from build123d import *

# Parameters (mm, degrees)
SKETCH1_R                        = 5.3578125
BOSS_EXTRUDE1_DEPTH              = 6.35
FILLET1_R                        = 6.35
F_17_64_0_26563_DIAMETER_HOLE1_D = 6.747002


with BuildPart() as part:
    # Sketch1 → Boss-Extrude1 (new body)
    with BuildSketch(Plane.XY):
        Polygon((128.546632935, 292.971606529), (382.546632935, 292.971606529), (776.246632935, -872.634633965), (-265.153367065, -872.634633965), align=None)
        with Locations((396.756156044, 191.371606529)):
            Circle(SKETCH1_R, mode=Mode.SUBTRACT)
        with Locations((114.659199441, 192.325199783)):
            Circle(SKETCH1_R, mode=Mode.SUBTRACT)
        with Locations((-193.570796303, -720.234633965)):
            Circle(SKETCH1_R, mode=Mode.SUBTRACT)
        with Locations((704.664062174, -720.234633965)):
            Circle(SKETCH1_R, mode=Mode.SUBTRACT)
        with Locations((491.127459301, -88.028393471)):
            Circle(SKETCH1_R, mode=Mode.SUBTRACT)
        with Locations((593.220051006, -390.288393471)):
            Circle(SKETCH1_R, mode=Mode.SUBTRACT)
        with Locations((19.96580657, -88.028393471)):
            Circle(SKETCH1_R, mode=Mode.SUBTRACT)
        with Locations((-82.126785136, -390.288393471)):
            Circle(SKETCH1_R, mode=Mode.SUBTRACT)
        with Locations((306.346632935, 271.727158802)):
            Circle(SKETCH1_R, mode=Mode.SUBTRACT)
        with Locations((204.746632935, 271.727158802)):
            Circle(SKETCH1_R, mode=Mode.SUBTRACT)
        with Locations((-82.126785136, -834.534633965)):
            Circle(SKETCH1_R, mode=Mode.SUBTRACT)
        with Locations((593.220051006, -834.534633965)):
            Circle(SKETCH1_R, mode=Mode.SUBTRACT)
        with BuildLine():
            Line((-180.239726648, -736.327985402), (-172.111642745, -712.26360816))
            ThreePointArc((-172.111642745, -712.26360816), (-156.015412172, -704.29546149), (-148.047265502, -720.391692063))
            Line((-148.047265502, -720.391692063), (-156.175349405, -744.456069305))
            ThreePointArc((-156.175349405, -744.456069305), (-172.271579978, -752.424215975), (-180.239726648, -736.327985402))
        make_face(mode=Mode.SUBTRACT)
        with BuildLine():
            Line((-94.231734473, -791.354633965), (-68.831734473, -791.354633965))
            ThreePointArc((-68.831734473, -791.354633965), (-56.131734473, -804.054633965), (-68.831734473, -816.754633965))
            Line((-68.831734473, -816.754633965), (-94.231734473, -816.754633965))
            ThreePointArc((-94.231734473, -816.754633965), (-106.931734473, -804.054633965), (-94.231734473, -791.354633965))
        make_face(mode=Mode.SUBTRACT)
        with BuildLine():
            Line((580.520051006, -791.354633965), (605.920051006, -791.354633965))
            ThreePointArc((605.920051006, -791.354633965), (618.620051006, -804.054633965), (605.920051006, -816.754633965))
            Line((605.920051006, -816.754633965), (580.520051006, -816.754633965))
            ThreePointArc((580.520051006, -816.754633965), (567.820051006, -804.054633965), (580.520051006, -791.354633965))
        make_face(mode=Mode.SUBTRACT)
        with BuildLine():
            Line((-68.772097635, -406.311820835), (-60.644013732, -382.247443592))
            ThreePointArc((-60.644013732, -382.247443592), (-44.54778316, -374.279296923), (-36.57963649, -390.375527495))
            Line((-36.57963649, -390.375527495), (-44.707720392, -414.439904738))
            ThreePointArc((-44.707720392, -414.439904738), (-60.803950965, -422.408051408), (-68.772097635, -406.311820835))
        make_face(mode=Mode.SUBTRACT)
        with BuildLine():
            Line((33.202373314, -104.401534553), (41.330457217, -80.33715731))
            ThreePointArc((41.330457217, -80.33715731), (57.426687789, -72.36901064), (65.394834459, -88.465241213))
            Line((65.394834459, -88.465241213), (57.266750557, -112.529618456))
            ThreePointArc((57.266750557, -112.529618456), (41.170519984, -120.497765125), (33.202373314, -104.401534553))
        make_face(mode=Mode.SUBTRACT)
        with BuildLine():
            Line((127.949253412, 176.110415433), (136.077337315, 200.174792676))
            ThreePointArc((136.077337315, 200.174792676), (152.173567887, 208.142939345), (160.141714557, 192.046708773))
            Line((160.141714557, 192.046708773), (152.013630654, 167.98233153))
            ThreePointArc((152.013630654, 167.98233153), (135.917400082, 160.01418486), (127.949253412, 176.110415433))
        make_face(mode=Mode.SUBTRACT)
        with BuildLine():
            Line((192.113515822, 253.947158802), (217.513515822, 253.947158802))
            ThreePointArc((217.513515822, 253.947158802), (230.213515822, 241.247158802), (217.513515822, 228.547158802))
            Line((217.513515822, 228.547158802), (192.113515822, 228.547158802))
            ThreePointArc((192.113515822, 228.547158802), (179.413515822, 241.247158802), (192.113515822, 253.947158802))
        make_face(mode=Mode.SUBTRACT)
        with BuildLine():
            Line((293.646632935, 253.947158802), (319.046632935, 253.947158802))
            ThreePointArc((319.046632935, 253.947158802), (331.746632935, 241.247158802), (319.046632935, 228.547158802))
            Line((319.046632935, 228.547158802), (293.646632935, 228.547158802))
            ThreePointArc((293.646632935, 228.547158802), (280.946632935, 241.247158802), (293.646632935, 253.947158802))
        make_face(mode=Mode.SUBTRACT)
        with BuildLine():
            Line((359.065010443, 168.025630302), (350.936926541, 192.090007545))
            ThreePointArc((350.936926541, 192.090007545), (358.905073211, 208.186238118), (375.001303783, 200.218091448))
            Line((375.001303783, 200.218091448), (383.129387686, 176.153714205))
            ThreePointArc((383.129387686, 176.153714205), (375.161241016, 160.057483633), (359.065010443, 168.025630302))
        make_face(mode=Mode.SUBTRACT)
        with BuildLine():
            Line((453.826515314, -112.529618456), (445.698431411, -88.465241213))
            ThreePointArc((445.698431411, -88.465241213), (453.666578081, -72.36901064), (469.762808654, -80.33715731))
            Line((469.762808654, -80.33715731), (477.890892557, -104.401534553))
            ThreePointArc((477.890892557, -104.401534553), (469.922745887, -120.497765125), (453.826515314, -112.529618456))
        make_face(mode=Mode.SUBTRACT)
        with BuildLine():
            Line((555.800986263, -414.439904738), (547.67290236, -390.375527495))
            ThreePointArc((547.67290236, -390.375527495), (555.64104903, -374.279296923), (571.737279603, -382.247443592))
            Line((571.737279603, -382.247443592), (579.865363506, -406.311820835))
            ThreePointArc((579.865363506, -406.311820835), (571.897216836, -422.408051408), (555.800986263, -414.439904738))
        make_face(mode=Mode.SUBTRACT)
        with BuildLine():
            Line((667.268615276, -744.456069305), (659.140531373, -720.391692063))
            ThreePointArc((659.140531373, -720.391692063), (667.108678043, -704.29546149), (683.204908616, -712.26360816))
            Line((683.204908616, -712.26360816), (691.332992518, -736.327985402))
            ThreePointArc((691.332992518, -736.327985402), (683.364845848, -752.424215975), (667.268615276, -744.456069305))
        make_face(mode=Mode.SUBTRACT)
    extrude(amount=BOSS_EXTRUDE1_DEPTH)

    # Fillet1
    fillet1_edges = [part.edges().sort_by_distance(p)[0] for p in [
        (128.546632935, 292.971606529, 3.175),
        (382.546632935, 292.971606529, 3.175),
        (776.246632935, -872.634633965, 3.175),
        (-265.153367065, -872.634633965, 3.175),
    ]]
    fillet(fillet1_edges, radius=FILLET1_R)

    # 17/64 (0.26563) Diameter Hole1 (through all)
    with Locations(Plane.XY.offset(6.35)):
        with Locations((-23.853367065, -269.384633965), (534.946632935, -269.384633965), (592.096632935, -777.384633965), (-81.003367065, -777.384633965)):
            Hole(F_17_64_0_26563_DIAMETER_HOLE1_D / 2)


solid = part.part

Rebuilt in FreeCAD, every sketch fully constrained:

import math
import FreeCAD as App
import Part
import Sketcher
Q = App.Units.Quantity


def edges_at(feature, points):
    """Names of the edges that pass closest to the given points."""
    edges = feature.Shape.Edges
    near = lambda p: min(range(len(edges)), key=lambda i: edges[i].distToShape(Part.Vertex(*p))[0])
    return sorted({f"Edge{near(p) + 1}" for p in points})

doc = App.newDocument("Part")
body = doc.addObject("PartDesign::Body", "Body")

sketch1 = doc.addObject("Sketcher::SketchObject", "Sketch")
body.addObject(sketch1)
sketch1.AttachmentSupport = (doc.XY_Plane, [""])
sketch1.MapMode = "FlatFace"
sketch1.addGeometry([
    Part.LineSegment(App.Vector(383, 293, 0), App.Vector(129, 293, 0)),
    Part.LineSegment(App.Vector(129, 293, 0), App.Vector(-265, -873, 0)),
    Part.LineSegment(App.Vector(-265, -873, 0), App.Vector(776, -873, 0)),
    Part.LineSegment(App.Vector(776, -873, 0), App.Vector(383, 293, 0)),
    Part.Circle(App.Vector(705, -720, 0), App.Vector(0, 0, 1), 5),
    Part.LineSegment(App.Vector(667, -744, 0), App.Vector(659, -720, 0)),
    Part.ArcOfCircle(Part.Circle(App.Vector(671, -716, 0), App.Vector(0, 0, 1), 13), math.radians(19), math.radians(199)),
    Part.LineSegment(App.Vector(683, -712, 0), App.Vector(691, -736, 0)),
    Part.ArcOfCircle(Part.Circle(App.Vector(679, -740, 0), App.Vector(0, 0, 1), 13), math.radians(-161), math.radians(19)),
    Part.Circle(App.Vector(593, -835, 0), App.Vector(0, 0, 1), 5),
    Part.LineSegment(App.Vector(581, -791, 0), App.Vector(606, -791, 0)),
    Part.ArcOfCircle(Part.Circle(App.Vector(606, -804, 0), App.Vector(0, 0, 1), 13), math.radians(-90), math.radians(90)),
    Part.LineSegment(App.Vector(606, -817, 0), App.Vector(581, -817, 0)),
    Part.ArcOfCircle(Part.Circle(App.Vector(581, -804, 0), App.Vector(0, 0, 1), 13), math.radians(90), math.radians(270)),
    Part.Circle(App.Vector(593, -390, 0), App.Vector(0, 0, 1), 5),
    Part.LineSegment(App.Vector(556, -414, 0), App.Vector(548, -390, 0)),
    Part.ArcOfCircle(Part.Circle(App.Vector(560, -386, 0), App.Vector(0, 0, 1), 13), math.radians(19), math.radians(199)),
    Part.LineSegment(App.Vector(572, -382, 0), App.Vector(580, -406, 0)),
    Part.ArcOfCircle(Part.Circle(App.Vector(568, -410, 0), App.Vector(0, 0, 1), 13), math.radians(-161), math.radians(19)),
    Part.Circle(App.Vector(-82, -835, 0), App.Vector(0, 0, 1), 5),
    Part.LineSegment(App.Vector(-94, -791, 0), App.Vector(-69, -791, 0)),
    Part.ArcOfCircle(Part.Circle(App.Vector(-69, -804, 0), App.Vector(0, 0, 1), 13), math.radians(-90), math.radians(90)),
    Part.LineSegment(App.Vector(-69, -817, 0), App.Vector(-94, -817, 0)),
    Part.ArcOfCircle(Part.Circle(App.Vector(-94, -804, 0), App.Vector(0, 0, 1), 13), math.radians(90), math.radians(270)),
    Part.LineSegment(App.Vector(-180, -736, 0), App.Vector(-172, -712, 0)),
    Part.ArcOfCircle(Part.Circle(App.Vector(-160, -716, 0), App.Vector(0, 0, 1), 13), math.radians(-19), math.radians(161)),
    Part.LineSegment(App.Vector(-148, -720, 0), App.Vector(-156, -744, 0)),
    Part.ArcOfCircle(Part.Circle(App.Vector(-168, -740, 0), App.Vector(0, 0, 1), 13), math.radians(161), math.radians(341)),
    Part.Circle(App.Vector(-194, -720, 0), App.Vector(0, 0, 1), 5),
    Part.LineSegment(App.Vector(-69, -406, 0), App.Vector(-61, -382, 0)),
    Part.ArcOfCircle(Part.Circle(App.Vector(-49, -386, 0), App.Vector(0, 0, 1), 13), math.radians(-19), math.radians(161)),
    Part.LineSegment(App.Vector(-37, -390, 0), App.Vector(-45, -414, 0)),
    Part.ArcOfCircle(Part.Circle(App.Vector(-57, -410, 0), App.Vector(0, 0, 1), 13), math.radians(161), math.radians(341)),
    Part.Circle(App.Vector(-82, -390, 0), App.Vector(0, 0, 1), 5),
    Part.Circle(App.Vector(491, -88, 0), App.Vector(0, 0, 1), 5),
    Part.LineSegment(App.Vector(454, -113, 0), App.Vector(446, -88, 0)),
    Part.ArcOfCircle(Part.Circle(App.Vector(458, -84, 0), App.Vector(0, 0, 1), 13), math.radians(19), math.radians(199)),
    Part.LineSegment(App.Vector(470, -80, 0), App.Vector(478, -104, 0)),
    Part.ArcOfCircle(Part.Circle(App.Vector(466, -108, 0), App.Vector(0, 0, 1), 13), math.radians(-161), math.radians(19)),
    Part.Circle(App.Vector(397, 191, 0), App.Vector(0, 0, 1), 5),
    Part.LineSegment(App.Vector(359, 168, 0), App.Vector(351, 192, 0)),
    Part.ArcOfCircle(Part.Circle(App.Vector(363, 196, 0), App.Vector(0, 0, 1), 13), math.radians(19), math.radians(199)),
    Part.LineSegment(App.Vector(375, 200, 0), App.Vector(383, 176, 0)),
    Part.ArcOfCircle(Part.Circle(App.Vector(371, 172, 0), App.Vector(0, 0, 1), 13), math.radians(-161), math.radians(19)),
    Part.LineSegment(App.Vector(294, 254, 0), App.Vector(319, 254, 0)),
    Part.ArcOfCircle(Part.Circle(App.Vector(319, 241, 0), App.Vector(0, 0, 1), 13), math.radians(-90), math.radians(90)),
    Part.LineSegment(App.Vector(319, 229, 0), App.Vector(294, 229, 0)),
    Part.ArcOfCircle(Part.Circle(App.Vector(294, 241, 0), App.Vector(0, 0, 1), 13), math.radians(90), math.radians(270)),
    Part.Circle(App.Vector(306, 272, 0), App.Vector(0, 0, 1), 5),
    Part.LineSegment(App.Vector(33, -104, 0), App.Vector(41, -80, 0)),
    Part.ArcOfCircle(Part.Circle(App.Vector(53, -84, 0), App.Vector(0, 0, 1), 13), math.radians(-19), math.radians(161)),
    Part.LineSegment(App.Vector(65, -88, 0), App.Vector(57, -113, 0)),
    Part.ArcOfCircle(Part.Circle(App.Vector(45, -108, 0), App.Vector(0, 0, 1), 13), math.radians(161), math.radians(341)),
    Part.Circle(App.Vector(20, -88, 0), App.Vector(0, 0, 1), 5),
    Part.LineSegment(App.Vector(128, 176, 0), App.Vector(136, 200, 0)),
    Part.ArcOfCircle(Part.Circle(App.Vector(148, 196, 0), App.Vector(0, 0, 1), 13), math.radians(-19), math.radians(161)),
    Part.LineSegment(App.Vector(160, 192, 0), App.Vector(152, 168, 0)),
    Part.ArcOfCircle(Part.Circle(App.Vector(140, 172, 0), App.Vector(0, 0, 1), 13), math.radians(161), math.radians(341)),
    Part.LineSegment(App.Vector(192, 254, 0), App.Vector(218, 254, 0)),
    Part.ArcOfCircle(Part.Circle(App.Vector(218, 241, 0), App.Vector(0, 0, 1), 13), math.radians(-90), math.radians(90)),
    Part.LineSegment(App.Vector(218, 229, 0), App.Vector(192, 229, 0)),
    Part.ArcOfCircle(Part.Circle(App.Vector(192, 241, 0), App.Vector(0, 0, 1), 13), math.radians(90), math.radians(270)),
    Part.Circle(App.Vector(205, 272, 0), App.Vector(0, 0, 1), 5),
    Part.Circle(App.Vector(115, 192, 0), App.Vector(0, 0, 1), 5),
], False)
sketch1.addConstraint([
    Sketcher.Constraint("Coincident", 0, 2, 1, 1),
    Sketcher.Constraint("Coincident", 1, 2, 2, 1),
    Sketcher.Constraint("Coincident", 2, 2, 3, 1),
    Sketcher.Constraint("Coincident", 3, 2, 0, 1),
    Sketcher.Constraint("Tangent", 5, 2, 6, 2),
    Sketcher.Constraint("Tangent", 6, 1, 7, 1),
    Sketcher.Constraint("Tangent", 7, 2, 8, 2),
    Sketcher.Constraint("Tangent", 8, 1, 5, 1),
    Sketcher.Constraint("Tangent", 10, 2, 11, 2),
    Sketcher.Constraint("Tangent", 11, 1, 12, 1),
    Sketcher.Constraint("Tangent", 12, 2, 13, 2),
    Sketcher.Constraint("Tangent", 13, 1, 10, 1),
    Sketcher.Constraint("Tangent", 15, 2, 16, 2),
    Sketcher.Constraint("Tangent", 16, 1, 17, 1),
    Sketcher.Constraint("Tangent", 17, 2, 18, 2),
    Sketcher.Constraint("Tangent", 18, 1, 15, 1),
    Sketcher.Constraint("Tangent", 20, 2, 21, 2),
    Sketcher.Constraint("Tangent", 21, 1, 22, 1),
    Sketcher.Constraint("Tangent", 22, 2, 23, 2),
    Sketcher.Constraint("Tangent", 23, 1, 20, 1),
    Sketcher.Constraint("Tangent", 24, 2, 25, 2),
    Sketcher.Constraint("Tangent", 25, 1, 26, 1),
    Sketcher.Constraint("Tangent", 26, 2, 27, 2),
    Sketcher.Constraint("Tangent", 27, 1, 24, 1),
    Sketcher.Constraint("Tangent", 29, 2, 30, 2),
    Sketcher.Constraint("Tangent", 30, 1, 31, 1),
    Sketcher.Constraint("Tangent", 31, 2, 32, 2),
    Sketcher.Constraint("Tangent", 32, 1, 29, 1),
    Sketcher.Constraint("Tangent", 35, 2, 36, 2),
    Sketcher.Constraint("Tangent", 36, 1, 37, 1),
    Sketcher.Constraint("Tangent", 37, 2, 38, 2),
    Sketcher.Constraint("Tangent", 38, 1, 35, 1),
    Sketcher.Constraint("Tangent", 40, 2, 41, 2),
    Sketcher.Constraint("Tangent", 41, 1, 42, 1),
    Sketcher.Constraint("Tangent", 42, 2, 43, 2),
    Sketcher.Constraint("Tangent", 43, 1, 40, 1),
    Sketcher.Constraint("Tangent", 44, 2, 45, 2),
    Sketcher.Constraint("Tangent", 45, 1, 46, 1),
    Sketcher.Constraint("Tangent", 46, 2, 47, 2),
    Sketcher.Constraint("Tangent", 47, 1, 44, 1),
    Sketcher.Constraint("Tangent", 49, 2, 50, 2),
    Sketcher.Constraint("Tangent", 50, 1, 51, 1),
    Sketcher.Constraint("Tangent", 51, 2, 52, 2),
    Sketcher.Constraint("Tangent", 52, 1, 49, 1),
    Sketcher.Constraint("Tangent", 54, 2, 55, 2),
    Sketcher.Constraint("Tangent", 55, 1, 56, 1),
    Sketcher.Constraint("Tangent", 56, 2, 57, 2),
    Sketcher.Constraint("Tangent", 57, 1, 54, 1),
    Sketcher.Constraint("Tangent", 58, 2, 59, 2),
    Sketcher.Constraint("Tangent", 59, 1, 60, 1),
    Sketcher.Constraint("Tangent", 60, 2, 61, 2),
    Sketcher.Constraint("Tangent", 61, 1, 58, 1),
    Sketcher.Constraint("Horizontal", 0),
    Sketcher.Constraint("Horizontal", 2),
    Sketcher.Constraint("Horizontal", 10),
    Sketcher.Constraint("Horizontal", 12),
    Sketcher.Constraint("Horizontal", 20),
    Sketcher.Constraint("Horizontal", 22),
    Sketcher.Constraint("Horizontal", 44),
    Sketcher.Constraint("Horizontal", 46),
    Sketcher.Constraint("Horizontal", 58),
    Sketcher.Constraint("Horizontal", 60),
    Sketcher.Constraint("Equal", 6, 8),
    Sketcher.Constraint("Equal", 4, 9),
    Sketcher.Constraint("Equal", 8, 11),
    Sketcher.Constraint("Equal", 9, 14),
    Sketcher.Constraint("Equal", 13, 16),
    Sketcher.Constraint("Equal", 16, 18),
    Sketcher.Constraint("Equal", 14, 19),
    Sketcher.Constraint("Equal", 18, 21),
    Sketcher.Constraint("Equal", 23, 25),
    Sketcher.Constraint("Equal", 25, 27),
    Sketcher.Constraint("Equal", 19, 28),
    Sketcher.Constraint("Equal", 27, 30),
    Sketcher.Constraint("Equal", 30, 32),
    Sketcher.Constraint("Equal", 28, 33),
    Sketcher.Constraint("Equal", 33, 34),
    Sketcher.Constraint("Equal", 32, 36),
    Sketcher.Constraint("Equal", 36, 38),
    Sketcher.Constraint("Equal", 34, 39),
    Sketcher.Constraint("Equal", 38, 41),
    Sketcher.Constraint("Equal", 41, 43),
    Sketcher.Constraint("Equal", 43, 45),
    Sketcher.Constraint("Equal", 39, 48),
    Sketcher.Constraint("Equal", 47, 50),
    Sketcher.Constraint("Equal", 50, 52),
    Sketcher.Constraint("Equal", 48, 53),
    Sketcher.Constraint("Equal", 52, 55),
    Sketcher.Constraint("Equal", 55, 57),
    Sketcher.Constraint("Equal", 57, 59),
    Sketcher.Constraint("Equal", 53, 62),
    Sketcher.Constraint("Equal", 62, 63),
    Sketcher.Constraint("Parallel", 3, 5),
    Sketcher.Constraint("Parallel", 7, 15),
    Sketcher.Constraint("Parallel", 1, 24),
    Sketcher.Constraint("Parallel", 26, 29),
    Sketcher.Constraint("Parallel", 17, 35),
    Sketcher.Constraint("Parallel", 37, 40),
    Sketcher.Constraint("Parallel", 31, 49),
    Sketcher.Constraint("Parallel", 51, 54),
    Sketcher.Constraint("Horizontal", 9, 3, 19, 3),
    Sketcher.Constraint("Horizontal", 13, 3, 21, 3),
    Sketcher.Constraint("Horizontal", 6, 3, 25, 3),
    Sketcher.Constraint("Horizontal", 8, 3, 27, 3),
    Sketcher.Constraint("Horizontal", 4, 3, 28, 3),
    Sketcher.Constraint("Horizontal", 16, 3, 30, 3),
    Sketcher.Constraint("Horizontal", 18, 3, 32, 3),
    Sketcher.Constraint("Horizontal", 14, 3, 33, 3),
    Sketcher.Constraint("Horizontal", 36, 3, 50, 3),
    Sketcher.Constraint("Horizontal", 38, 3, 52, 3),
    Sketcher.Constraint("Horizontal", 34, 3, 53, 3),
    Sketcher.Constraint("Horizontal", 47, 3, 59, 3),
    Sketcher.Constraint("Horizontal", 48, 3, 62, 3),
    Sketcher.Constraint("Vertical", 9, 3, 14, 3),
    Sketcher.Constraint("Vertical", 19, 3, 33, 3),
    Sketcher.Constraint("Equal", 12, 20),
    Sketcher.Constraint("Equal", 22, 44),
    Sketcher.Constraint("Equal", 46, 58),
    Sketcher.Constraint("Equal", 1, 3),
    Sketcher.Constraint("Equal", 7, 15),
    Sketcher.Constraint("Equal", 31, 35),
    Sketcher.Constraint("Equal", 37, 40),
    Sketcher.Constraint("Equal", 51, 54),
    Sketcher.Constraint("Radius", 6, Q("0.5 in")),
    Sketcher.Constraint("DistanceX", 0, 2, 0, 1, Q("10 in")),
    Sketcher.Constraint("DistanceX", 2, 1, 2, 2, Q("41 in")),
    Sketcher.Constraint("DistanceX", 10, 1, 10, 2, Q("1 in")),
    Sketcher.Constraint("Distance", 5, Q("1 in")),
    Sketcher.Constraint("Diameter", 4, Q("0.421875 in")),
    Sketcher.Constraint("Distance", 1, Q("48.437 in")),
    Sketcher.Constraint("DistanceY", 38, 1, -1, 1, Q("4.4302999 in")),
    Sketcher.Constraint("DistanceX", -1, 1, 43, 3, 371.097199),
    Sketcher.Constraint("DistanceX", -1, 1, 63, 3, 114.659199),
    Sketcher.Constraint("DistanceY", -1, 1, 63, 3, 192.3252),
    Sketcher.Constraint("DistanceX", -1, 1, 6, 3, 671.17272),
    Sketcher.Constraint("DistanceY", 6, 3, -1, 1, 716.32765),
    Sketcher.Constraint("DistanceX", -1, 1, 9, 3, 593.220051),
    Sketcher.Constraint("DistanceX", -1, 1, 11, 3, 605.920051),
    Sketcher.Constraint("DistanceX", -1, 1, 16, 3, 559.705091),
    Sketcher.Constraint("DistanceX", 27, 3, -1, 1, 168.207538),
    Sketcher.Constraint("DistanceX", 32, 3, -1, 1, 56.739909),
    Sketcher.Constraint("DistanceX", -1, 1, 34, 3, 491.127459),
    Sketcher.Constraint("DistanceX", -1, 1, 36, 3, 457.73062),
    Sketcher.Constraint("DistanceY", -1, 1, 41, 3, 196.154049),
    Sketcher.Constraint("DistanceY", -1, 1, 45, 3, 241.247159),
    Sketcher.Constraint("DistanceY", -1, 1, 48, 3, 271.727159),
    Sketcher.Constraint("DistanceX", -1, 1, 52, 3, 45.234562),
    Sketcher.Constraint("DistanceY", -1, 1, 55, 3, 196.110751),
    Sketcher.Constraint("DistanceY", 17, 2, -1, 1, 406.311821),
    Sketcher.Constraint("DistanceX", -1, 1, 56, 2, 152.013631),
    Sketcher.Constraint("DistanceX", -1, 1, 4, 3, 704.664062),
    Sketcher.Constraint("DistanceY", 4, 3, -1, 1, 720.234634),
    Sketcher.Constraint("DistanceY", 9, 3, -1, 1, 834.534634),
    Sketcher.Constraint("DistanceY", 11, 3, -1, 1, 804.054634),
    Sketcher.Constraint("DistanceY", 14, 3, -1, 1, 390.288393),
    Sketcher.Constraint("DistanceX", 19, 3, -1, 1, 82.126785),
    Sketcher.Constraint("DistanceX", 21, 3, -1, 1, 68.831734),
    Sketcher.Constraint("DistanceX", 28, 3, -1, 1, 193.570796),
    Sketcher.Constraint("DistanceY", 34, 3, -1, 1, 88.028393),
    Sketcher.Constraint("DistanceX", -1, 1, 39, 3, 396.756156),
    Sketcher.Constraint("DistanceY", -1, 1, 39, 3, 191.371607),
    Sketcher.Constraint("DistanceX", -1, 1, 45, 3, 319.046633),
    Sketcher.Constraint("DistanceX", -1, 1, 48, 3, 306.346633),
    Sketcher.Constraint("DistanceX", -1, 1, 53, 3, 19.965807),
    Sketcher.Constraint("DistanceX", -1, 1, 59, 3, 217.513516),
    Sketcher.Constraint("DistanceX", -1, 1, 62, 3, 204.746633),
    Sketcher.Constraint("DistanceX", -1, 1, 0, 2, 128.546633),
    Sketcher.Constraint("DistanceY", -1, 1, 0, 2, 292.971607),
])
pad1 = doc.addObject("PartDesign::Pad", "Pad")
body.addObject(pad1)
pad1.Profile = sketch1
pad1.Length = Q("0.25 in")
doc.recompute()

fillet = doc.addObject("PartDesign::Fillet", "Fillet")
body.addObject(fillet)
fillet.Base = (pad1, edges_at(pad1, [
    (128.547, 292.972, 3.175),
    (382.547, 292.972, 3.175),
    (776.247, -872.635, 3.175),
    (-265.153, -872.635, 3.175),
]))
fillet.Radius = Q("0.25 in")

sketch2 = doc.addObject("Sketcher::SketchObject", "Sketch001")
body.addObject(sketch2)
sketch2.AttachmentSupport = (doc.XY_Plane, [""])
sketch2.MapMode = "FlatFace"
sketch2.AttachmentOffset = App.Placement(App.Vector(0, 0, 0.25 * 25.4), App.Rotation())
sketch2.addGeometry([
    Part.Circle(App.Vector(-23.9, -269.4, 0), App.Vector(0, 0, 1), 3.4),
    Part.Circle(App.Vector(534.9, -269.4, 0), App.Vector(0, 0, 1), 3.4),
    Part.Circle(App.Vector(592.1, -777.4, 0), App.Vector(0, 0, 1), 3.4),
    Part.Circle(App.Vector(-81, -777.4, 0), App.Vector(0, 0, 1), 3.4),
], False)
sketch2.addConstraint([
    Sketcher.Constraint("Equal", 0, 1),
    Sketcher.Constraint("Equal", 1, 2),
    Sketcher.Constraint("Equal", 2, 3),
    Sketcher.Constraint("Horizontal", 0, 3, 1, 3),
    Sketcher.Constraint("Horizontal", 2, 3, 3, 3),
    Sketcher.Constraint("DistanceX", 0, 3, 1, 3, Q("22 in")),
    Sketcher.Constraint("DistanceY", 2, 3, 1, 3, Q("20 in")),
    Sketcher.Constraint("DistanceX", 3, 3, 2, 3, Q("26.5 in")),
    Sketcher.Constraint("DistanceX", 1, 3, 2, 3, Q("2.25 in")),
    Sketcher.Constraint("Diameter", 0, 6.747002),
    Sketcher.Constraint("DistanceX", 0, 3, -1, 1, 23.853367),
    Sketcher.Constraint("DistanceY", 0, 3, -1, 1, 269.384634),
])
doc.recompute()
hole = doc.addObject("PartDesign::Hole", "Hole")
body.addObject(hole)
hole.Profile = sketch2
hole.ThreadType = "None"
hole.Diameter = 6.747002
hole.DepthType = "ThroughAll"

doc.recompute()
